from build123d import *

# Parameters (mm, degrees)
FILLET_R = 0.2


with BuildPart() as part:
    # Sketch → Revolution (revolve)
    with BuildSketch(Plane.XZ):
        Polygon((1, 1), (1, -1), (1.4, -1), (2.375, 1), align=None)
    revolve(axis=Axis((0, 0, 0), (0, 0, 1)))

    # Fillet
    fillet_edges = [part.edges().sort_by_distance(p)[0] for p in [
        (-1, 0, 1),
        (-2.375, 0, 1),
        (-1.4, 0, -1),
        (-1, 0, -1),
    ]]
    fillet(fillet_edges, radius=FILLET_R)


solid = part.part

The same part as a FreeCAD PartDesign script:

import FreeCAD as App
import Part
import Sketcher


def edges_at(feature, points):
    """Names of the edges that pass closest to the given points."""
    edges = feature.Shape.Edges
    near = lambda p: min(range(len(edges)), key=lambda i: edges[i].distToShape(Part.Vertex(*p))[0])
    return sorted({f"Edge{near(p) + 1}" for p in points})

doc = App.newDocument("Part")
body = doc.addObject("PartDesign::Body", "Body")

# Sketch on XZ plane
sketch1 = body.newObject("Sketcher::SketchObject", "Sketch")
sketch1.AttachmentSupport = (doc.getObject("XZ_Plane"), [""])
sketch1.MapMode = "FlatFace"
sketch1.addGeometry([
    Part.LineSegment(App.Vector(1, 1, 0), App.Vector(1, -1, 0)),
    Part.LineSegment(App.Vector(1, -1, 0), App.Vector(1.4, -1, 0)),
    Part.LineSegment(App.Vector(1.4, -1, 0), App.Vector(2.38, 1, 0)),
    Part.LineSegment(App.Vector(2.38, 1, 0), App.Vector(1, 1, 0)),
], False)
sketch1.addConstraint([
    Sketcher.Constraint("Coincident", 0, 2, 1, 1),
    Sketcher.Constraint("Coincident", 1, 2, 2, 1),
    Sketcher.Constraint("Coincident", 2, 2, 3, 1),
    Sketcher.Constraint("Coincident", 3, 2, 0, 1),
    Sketcher.Constraint("Vertical", 0),
    Sketcher.Constraint("Horizontal", 1),
    Sketcher.Constraint("Horizontal", 3),
    Sketcher.Constraint("DistanceY", 0, 2, 0, 1, 2.0),
    Sketcher.Constraint("DistanceX", 1, 1, 1, 2, 0.4),
    Sketcher.Constraint("DistanceX", -1, 1, 0, 2, 1.0),
    Sketcher.Constraint("DistanceY", 0, 2, -1, 1, 1.0),
    Sketcher.Constraint("DistanceX", 3, 2, 3, 1, 1.375),
])
revolution = body.newObject("PartDesign::Revolution", "Revolution")
revolution.Profile = sketch1
revolution.ReferenceAxis = (sketch1, ["V_Axis"])
revolution.Angle = 360
doc.recompute()

fillet = body.newObject("PartDesign::Fillet", "Fillet")
fillet.Base = (revolution, edges_at(revolution, [
    (-1, 0, 1),
    (-2.375, 0, 1),
    (-1.4, 0, -1),
    (-1, 0, -1),
]))
fillet.Radius = 0.2

doc.recompute()
